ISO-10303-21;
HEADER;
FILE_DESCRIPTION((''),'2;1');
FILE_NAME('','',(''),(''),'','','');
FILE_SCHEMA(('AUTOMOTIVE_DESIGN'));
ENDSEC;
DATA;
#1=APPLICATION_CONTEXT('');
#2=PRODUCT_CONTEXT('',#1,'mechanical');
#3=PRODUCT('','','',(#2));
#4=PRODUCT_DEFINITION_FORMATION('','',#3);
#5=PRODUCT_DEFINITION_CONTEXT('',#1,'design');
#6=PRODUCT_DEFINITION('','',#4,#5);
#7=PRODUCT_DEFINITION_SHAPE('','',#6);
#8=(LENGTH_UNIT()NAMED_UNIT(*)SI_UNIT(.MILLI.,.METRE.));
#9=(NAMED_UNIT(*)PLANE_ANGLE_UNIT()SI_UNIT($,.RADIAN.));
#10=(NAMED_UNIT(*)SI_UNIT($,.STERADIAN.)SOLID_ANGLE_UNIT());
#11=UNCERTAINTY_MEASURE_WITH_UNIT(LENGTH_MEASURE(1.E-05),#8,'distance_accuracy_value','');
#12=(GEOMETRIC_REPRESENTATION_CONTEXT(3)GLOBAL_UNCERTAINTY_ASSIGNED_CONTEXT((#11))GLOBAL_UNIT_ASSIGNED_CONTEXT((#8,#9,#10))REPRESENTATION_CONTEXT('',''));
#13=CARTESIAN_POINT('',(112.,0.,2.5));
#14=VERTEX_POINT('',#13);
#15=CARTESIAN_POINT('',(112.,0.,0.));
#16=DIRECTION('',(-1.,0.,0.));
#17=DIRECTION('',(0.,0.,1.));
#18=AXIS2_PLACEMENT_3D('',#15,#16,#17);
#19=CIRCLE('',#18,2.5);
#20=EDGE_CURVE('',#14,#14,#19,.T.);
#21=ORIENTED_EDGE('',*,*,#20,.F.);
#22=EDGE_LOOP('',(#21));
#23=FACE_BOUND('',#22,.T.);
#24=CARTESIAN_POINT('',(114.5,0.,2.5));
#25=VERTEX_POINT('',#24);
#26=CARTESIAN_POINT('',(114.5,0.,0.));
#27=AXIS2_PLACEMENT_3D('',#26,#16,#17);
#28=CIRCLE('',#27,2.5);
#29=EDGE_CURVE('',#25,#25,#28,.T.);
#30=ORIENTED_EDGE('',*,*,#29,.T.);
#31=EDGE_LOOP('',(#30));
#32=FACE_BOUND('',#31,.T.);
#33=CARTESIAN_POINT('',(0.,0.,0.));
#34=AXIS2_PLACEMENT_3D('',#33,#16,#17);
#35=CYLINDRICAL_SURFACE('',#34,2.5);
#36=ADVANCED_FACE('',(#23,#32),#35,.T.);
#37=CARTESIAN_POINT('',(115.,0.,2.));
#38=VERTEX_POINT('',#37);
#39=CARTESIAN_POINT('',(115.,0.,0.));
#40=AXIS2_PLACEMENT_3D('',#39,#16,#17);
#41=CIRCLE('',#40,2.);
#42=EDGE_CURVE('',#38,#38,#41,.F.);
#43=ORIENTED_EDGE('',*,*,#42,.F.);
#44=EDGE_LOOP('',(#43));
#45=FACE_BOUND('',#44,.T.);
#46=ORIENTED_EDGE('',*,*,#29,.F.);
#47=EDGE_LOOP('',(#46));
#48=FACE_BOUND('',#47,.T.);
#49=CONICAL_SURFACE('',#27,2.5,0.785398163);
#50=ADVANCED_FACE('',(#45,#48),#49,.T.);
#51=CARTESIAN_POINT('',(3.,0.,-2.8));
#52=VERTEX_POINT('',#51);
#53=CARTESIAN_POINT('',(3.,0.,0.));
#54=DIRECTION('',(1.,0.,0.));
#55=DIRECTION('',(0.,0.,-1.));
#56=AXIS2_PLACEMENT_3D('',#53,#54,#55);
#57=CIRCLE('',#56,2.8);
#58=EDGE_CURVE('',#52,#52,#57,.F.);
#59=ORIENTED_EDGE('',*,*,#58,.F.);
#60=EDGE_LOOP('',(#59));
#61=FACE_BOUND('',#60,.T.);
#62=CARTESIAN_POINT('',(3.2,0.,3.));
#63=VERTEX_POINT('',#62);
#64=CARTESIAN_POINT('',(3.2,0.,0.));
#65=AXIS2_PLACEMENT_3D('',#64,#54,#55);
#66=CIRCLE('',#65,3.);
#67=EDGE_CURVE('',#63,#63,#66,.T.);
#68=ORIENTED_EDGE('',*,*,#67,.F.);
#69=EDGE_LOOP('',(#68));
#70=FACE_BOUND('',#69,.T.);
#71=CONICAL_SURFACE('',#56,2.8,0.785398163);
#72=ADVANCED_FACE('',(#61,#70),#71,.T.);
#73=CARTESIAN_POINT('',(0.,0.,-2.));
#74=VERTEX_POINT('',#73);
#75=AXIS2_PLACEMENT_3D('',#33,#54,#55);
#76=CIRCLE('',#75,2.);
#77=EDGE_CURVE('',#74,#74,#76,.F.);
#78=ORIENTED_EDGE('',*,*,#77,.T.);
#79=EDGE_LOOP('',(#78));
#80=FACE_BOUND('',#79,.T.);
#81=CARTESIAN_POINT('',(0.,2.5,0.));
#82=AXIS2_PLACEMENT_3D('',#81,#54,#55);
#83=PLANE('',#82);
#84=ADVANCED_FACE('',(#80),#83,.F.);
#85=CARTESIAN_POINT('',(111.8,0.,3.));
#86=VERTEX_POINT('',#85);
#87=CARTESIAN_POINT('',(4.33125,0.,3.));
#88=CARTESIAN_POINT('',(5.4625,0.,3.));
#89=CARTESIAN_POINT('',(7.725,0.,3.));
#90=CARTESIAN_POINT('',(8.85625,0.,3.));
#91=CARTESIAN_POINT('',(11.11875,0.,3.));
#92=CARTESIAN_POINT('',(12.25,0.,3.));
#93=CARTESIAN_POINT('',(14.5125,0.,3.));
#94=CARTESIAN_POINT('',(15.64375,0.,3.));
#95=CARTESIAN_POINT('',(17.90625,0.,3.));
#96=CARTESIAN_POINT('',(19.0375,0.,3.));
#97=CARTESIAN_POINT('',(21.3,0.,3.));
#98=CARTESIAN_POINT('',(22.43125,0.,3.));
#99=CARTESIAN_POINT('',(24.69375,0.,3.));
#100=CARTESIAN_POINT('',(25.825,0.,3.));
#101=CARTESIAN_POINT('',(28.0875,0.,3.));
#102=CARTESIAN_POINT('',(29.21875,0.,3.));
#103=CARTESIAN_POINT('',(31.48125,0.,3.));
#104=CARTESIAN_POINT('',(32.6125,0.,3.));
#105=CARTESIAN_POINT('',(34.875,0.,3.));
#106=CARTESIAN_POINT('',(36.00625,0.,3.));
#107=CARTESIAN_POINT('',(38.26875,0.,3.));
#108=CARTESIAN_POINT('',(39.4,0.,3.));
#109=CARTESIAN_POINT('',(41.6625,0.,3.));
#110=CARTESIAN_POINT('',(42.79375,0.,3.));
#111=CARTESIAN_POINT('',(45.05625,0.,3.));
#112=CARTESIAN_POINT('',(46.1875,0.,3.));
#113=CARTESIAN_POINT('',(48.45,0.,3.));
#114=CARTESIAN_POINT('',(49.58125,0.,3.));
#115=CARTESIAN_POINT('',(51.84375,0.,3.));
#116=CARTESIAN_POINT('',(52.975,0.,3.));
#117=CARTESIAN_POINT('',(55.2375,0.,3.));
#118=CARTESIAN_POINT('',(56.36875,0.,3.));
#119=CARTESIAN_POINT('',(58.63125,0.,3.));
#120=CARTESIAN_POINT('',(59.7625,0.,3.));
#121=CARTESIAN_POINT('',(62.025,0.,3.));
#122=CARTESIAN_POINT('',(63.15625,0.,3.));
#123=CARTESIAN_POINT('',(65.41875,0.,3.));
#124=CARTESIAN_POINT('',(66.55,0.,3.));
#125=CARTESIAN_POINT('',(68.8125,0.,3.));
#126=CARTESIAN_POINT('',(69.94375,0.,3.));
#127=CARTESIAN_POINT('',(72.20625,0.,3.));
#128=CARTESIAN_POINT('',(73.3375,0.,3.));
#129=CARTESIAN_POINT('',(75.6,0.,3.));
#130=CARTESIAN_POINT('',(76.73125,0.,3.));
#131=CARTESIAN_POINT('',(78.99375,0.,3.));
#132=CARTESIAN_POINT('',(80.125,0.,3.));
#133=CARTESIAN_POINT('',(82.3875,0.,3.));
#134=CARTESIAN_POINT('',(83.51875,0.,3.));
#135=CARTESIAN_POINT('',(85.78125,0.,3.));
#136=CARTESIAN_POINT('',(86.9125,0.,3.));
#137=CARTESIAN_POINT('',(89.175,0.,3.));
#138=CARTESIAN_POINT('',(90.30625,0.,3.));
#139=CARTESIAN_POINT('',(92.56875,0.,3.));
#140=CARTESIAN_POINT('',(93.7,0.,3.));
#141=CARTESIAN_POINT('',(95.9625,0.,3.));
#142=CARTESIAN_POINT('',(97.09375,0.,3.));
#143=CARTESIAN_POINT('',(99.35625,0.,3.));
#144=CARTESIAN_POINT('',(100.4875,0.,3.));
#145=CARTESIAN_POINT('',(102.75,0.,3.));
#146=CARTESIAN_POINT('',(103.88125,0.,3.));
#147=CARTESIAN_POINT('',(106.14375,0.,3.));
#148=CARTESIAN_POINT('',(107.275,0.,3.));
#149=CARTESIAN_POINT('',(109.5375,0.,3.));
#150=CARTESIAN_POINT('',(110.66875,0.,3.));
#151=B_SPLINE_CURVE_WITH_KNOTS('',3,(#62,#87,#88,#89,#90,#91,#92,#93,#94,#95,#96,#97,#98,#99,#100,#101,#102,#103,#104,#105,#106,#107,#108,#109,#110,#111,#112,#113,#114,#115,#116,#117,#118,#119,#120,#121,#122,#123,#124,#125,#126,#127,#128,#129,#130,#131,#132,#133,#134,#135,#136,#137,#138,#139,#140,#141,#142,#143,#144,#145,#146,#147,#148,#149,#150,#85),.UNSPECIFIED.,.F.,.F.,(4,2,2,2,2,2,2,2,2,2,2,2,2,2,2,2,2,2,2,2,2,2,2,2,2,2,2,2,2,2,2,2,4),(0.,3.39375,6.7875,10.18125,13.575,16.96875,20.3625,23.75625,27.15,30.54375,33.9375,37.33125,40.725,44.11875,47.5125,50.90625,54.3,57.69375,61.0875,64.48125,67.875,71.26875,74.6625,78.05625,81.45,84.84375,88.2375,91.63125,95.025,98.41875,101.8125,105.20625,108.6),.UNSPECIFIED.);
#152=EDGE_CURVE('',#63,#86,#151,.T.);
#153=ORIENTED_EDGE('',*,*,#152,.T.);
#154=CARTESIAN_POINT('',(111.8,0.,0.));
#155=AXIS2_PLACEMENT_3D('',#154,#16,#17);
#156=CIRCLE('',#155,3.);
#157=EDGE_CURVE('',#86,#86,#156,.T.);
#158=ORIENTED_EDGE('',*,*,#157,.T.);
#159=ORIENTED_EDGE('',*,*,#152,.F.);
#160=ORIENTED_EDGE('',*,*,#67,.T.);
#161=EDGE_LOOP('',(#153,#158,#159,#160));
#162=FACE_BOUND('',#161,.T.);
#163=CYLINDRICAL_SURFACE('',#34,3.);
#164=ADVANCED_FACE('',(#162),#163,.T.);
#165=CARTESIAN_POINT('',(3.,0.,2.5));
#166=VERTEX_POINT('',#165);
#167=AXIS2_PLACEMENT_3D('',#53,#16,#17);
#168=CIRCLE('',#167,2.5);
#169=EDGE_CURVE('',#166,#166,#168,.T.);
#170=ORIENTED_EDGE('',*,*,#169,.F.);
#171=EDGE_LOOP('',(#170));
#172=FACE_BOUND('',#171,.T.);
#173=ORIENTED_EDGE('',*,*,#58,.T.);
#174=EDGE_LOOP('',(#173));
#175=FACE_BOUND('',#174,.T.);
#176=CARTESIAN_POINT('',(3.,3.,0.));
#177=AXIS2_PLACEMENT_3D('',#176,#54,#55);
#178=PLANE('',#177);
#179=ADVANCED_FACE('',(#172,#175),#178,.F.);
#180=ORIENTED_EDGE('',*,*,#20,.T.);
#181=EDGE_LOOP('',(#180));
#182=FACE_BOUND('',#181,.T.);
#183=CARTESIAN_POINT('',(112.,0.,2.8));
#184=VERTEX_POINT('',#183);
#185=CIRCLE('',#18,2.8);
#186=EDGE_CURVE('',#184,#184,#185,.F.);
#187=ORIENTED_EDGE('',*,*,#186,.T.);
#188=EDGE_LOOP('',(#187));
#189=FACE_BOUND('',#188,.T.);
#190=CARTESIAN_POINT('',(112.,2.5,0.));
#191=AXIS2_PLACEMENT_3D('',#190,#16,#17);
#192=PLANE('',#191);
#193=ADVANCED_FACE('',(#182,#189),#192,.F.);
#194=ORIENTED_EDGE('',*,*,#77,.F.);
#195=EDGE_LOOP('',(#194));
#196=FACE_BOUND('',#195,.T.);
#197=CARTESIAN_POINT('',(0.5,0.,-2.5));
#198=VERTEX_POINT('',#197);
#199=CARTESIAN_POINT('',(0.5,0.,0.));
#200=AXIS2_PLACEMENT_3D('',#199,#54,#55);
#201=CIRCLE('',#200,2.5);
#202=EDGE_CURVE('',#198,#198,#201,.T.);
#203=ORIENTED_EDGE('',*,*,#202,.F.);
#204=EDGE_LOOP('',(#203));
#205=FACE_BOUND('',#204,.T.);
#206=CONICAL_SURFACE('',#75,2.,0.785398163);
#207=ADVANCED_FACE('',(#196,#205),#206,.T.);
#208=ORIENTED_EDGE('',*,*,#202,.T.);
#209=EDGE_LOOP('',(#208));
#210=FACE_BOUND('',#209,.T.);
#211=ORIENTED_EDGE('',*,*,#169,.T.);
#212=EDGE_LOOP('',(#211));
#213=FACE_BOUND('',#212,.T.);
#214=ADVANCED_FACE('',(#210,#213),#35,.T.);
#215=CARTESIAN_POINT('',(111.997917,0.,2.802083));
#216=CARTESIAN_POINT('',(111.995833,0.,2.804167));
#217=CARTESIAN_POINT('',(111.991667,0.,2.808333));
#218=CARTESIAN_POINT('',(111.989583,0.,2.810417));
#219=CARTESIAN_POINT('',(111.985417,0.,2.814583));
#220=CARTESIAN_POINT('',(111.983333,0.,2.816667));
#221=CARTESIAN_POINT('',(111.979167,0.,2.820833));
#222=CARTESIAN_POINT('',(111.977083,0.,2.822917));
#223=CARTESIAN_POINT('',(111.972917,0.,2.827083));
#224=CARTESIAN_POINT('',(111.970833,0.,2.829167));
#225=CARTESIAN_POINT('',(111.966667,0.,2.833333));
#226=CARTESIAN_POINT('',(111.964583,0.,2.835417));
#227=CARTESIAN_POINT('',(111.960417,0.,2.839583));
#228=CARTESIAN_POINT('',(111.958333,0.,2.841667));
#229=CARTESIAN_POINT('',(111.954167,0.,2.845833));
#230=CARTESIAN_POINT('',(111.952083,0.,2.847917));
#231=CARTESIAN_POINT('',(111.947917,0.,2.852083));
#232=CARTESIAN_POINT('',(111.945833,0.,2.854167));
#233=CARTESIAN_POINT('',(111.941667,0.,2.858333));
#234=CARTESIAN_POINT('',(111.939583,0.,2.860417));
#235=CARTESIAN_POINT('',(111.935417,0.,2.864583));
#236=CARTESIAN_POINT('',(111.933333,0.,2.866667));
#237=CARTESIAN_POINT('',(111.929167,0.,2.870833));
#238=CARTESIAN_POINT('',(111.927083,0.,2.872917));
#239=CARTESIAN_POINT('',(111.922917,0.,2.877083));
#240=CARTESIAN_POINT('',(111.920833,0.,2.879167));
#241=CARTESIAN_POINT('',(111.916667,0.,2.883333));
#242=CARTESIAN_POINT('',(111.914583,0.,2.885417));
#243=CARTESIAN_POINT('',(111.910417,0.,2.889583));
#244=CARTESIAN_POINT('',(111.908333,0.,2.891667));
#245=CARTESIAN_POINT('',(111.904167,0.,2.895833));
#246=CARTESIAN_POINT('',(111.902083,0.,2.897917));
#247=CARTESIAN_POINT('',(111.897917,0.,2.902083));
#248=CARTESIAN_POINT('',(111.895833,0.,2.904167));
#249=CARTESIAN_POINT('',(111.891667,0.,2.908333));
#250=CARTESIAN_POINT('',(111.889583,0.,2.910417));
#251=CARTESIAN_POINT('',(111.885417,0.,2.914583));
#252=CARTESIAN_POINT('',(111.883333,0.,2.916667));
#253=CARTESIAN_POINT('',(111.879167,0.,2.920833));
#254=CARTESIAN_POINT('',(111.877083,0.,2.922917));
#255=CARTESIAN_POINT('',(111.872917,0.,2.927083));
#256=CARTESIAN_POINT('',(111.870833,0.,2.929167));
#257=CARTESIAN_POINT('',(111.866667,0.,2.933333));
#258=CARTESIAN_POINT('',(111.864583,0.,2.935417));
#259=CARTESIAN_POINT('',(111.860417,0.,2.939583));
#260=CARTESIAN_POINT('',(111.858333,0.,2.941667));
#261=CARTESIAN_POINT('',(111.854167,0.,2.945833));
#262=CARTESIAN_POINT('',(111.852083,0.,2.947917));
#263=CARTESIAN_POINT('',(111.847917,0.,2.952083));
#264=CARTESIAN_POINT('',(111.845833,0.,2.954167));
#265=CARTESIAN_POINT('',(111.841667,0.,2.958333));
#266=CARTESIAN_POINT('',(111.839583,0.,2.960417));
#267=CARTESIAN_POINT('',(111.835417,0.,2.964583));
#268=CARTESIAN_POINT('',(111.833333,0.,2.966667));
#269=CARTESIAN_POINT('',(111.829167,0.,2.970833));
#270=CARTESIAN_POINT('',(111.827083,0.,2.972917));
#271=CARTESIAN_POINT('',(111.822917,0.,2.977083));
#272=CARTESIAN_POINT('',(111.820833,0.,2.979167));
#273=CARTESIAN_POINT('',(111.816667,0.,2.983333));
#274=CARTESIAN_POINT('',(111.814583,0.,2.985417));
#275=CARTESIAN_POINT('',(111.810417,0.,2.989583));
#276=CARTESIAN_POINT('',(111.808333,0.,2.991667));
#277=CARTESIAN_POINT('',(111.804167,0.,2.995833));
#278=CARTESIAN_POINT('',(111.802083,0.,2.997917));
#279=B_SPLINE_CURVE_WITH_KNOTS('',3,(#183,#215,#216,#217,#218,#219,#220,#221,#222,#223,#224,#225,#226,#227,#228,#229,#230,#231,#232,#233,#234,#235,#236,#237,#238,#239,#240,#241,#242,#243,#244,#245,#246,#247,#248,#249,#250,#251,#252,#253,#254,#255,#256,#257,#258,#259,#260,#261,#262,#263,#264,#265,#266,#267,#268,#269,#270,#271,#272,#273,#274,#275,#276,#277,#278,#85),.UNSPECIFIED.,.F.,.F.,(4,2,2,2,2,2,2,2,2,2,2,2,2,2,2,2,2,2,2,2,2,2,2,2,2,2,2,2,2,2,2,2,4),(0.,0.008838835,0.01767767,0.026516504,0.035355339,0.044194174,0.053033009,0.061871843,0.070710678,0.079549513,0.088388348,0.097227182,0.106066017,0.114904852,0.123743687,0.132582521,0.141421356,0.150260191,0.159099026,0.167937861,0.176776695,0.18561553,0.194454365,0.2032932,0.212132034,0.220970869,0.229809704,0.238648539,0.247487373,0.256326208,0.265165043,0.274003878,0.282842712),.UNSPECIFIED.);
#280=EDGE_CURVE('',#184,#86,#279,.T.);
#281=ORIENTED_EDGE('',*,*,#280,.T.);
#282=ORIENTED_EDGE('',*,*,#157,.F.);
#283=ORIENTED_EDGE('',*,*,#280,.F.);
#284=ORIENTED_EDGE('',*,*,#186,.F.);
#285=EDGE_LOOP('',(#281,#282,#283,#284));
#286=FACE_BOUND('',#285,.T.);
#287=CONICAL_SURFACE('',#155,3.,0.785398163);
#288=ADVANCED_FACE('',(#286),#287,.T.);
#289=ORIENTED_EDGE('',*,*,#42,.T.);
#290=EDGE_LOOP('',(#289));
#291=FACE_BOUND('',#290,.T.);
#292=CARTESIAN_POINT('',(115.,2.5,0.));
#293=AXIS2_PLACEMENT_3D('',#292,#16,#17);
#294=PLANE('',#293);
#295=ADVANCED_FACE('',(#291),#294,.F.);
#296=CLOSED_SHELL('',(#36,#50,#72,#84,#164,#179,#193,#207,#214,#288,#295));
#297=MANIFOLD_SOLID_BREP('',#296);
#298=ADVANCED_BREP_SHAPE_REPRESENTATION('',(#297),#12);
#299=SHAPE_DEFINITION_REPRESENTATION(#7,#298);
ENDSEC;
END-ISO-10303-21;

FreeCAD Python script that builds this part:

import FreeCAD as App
import Part
import Sketcher

V = App.Vector


def edges_at(feature, points):
    """Names of the edges that pass closest to the given points."""
    edges = feature.Shape.Edges
    near = lambda p: min(range(len(edges)), key=lambda i: edges[i].distToShape(Part.Vertex(*p))[0])
    return sorted({f"Edge{near(p) + 1}" for p in points})


def add_polygon(sketch, points):
    """Adds a closed chain of lines whose ends are joined by coincident constraints."""
    first, n = sketch.GeometryCount, len(points)
    for a, b in zip(points, points[1:] + points[:1]):
        sketch.addGeometry(Part.LineSegment(App.Vector(*a, 0), App.Vector(*b, 0)), False)
    for i in range(n):
        sketch.addConstraint(Sketcher.Constraint("Coincident", first + i, 2, first + (i + 1) % n, 1))

doc = App.newDocument("Part")
body = doc.addObject("PartDesign::Body", "Body")

# Sketch on XY plane
sketch1 = body.newObject("Sketcher::SketchObject", "Sketch")
sketch1.AttachmentSupport = (doc.getObject("XY_Plane"), [""])
sketch1.MapMode = "FlatFace"
add_polygon(sketch1, [(0, 0), (115, 0), (115, 2.5), (112, 2.5), (112, 3), (3, 3), (3, 2.5), (0, 2.5)])  # lines 0-7
sketch1.addConstraint([
    Sketcher.Constraint("Horizontal", 0),
    Sketcher.Constraint("Vertical", 1),
    Sketcher.Constraint("Horizontal", 2),
    Sketcher.Constraint("Vertical", 3),
    Sketcher.Constraint("Horizontal", 4),
    Sketcher.Constraint("Vertical", 5),
    Sketcher.Constraint("Horizontal", 6),
    Sketcher.Constraint("Vertical", 7),
    Sketcher.Constraint("Coincident", 7, 2, -1, 1),
    Sketcher.Constraint("Horizontal", 2, 2, 5, 2),
    Sketcher.Constraint("Equal", 2, 6),
    Sketcher.Constraint("DistanceX", 0, 1, 0, 2, 115.0),
    Sketcher.Constraint("DistanceX", 2, 2, 2, 1, 3.0),
    Sketcher.Constraint("DistanceY", 1, 1, 1, 2, 2.5),
    Sketcher.Constraint("DistanceY", 3, 1, 3, 2, 0.5),
])
revolution = body.newObject("PartDesign::Revolution", "Revolution")
revolution.Profile = sketch1
revolution.ReferenceAxis = (sketch1, ["H_Axis"])
revolution.Angle = 360
doc.recompute()

chamfer = body.newObject("PartDesign::Chamfer", "Chamfer")
chamfer.Base = (revolution, edges_at(revolution, [(112, 0, -3)]))
chamfer.Size = 0.2
doc.recompute()

chamfer2 = body.newObject("PartDesign::Chamfer", "Chamfer001")
chamfer2.Base = (chamfer, edges_at(chamfer, [(3, 0, -3)]))
chamfer2.Size = 0.2
doc.recompute()

chamfer3 = body.newObject("PartDesign::Chamfer", "Chamfer002")
chamfer3.Base = (chamfer2, edges_at(chamfer2, [(0, 0, -2.5)]))
chamfer3.Size = 0.5
doc.recompute()

chamfer4 = body.newObject("PartDesign::Chamfer", "Chamfer003")
chamfer4.Base = (chamfer3, edges_at(chamfer3, [(115, 0, -2.5)]))
chamfer4.Size = 0.5

doc.recompute()
